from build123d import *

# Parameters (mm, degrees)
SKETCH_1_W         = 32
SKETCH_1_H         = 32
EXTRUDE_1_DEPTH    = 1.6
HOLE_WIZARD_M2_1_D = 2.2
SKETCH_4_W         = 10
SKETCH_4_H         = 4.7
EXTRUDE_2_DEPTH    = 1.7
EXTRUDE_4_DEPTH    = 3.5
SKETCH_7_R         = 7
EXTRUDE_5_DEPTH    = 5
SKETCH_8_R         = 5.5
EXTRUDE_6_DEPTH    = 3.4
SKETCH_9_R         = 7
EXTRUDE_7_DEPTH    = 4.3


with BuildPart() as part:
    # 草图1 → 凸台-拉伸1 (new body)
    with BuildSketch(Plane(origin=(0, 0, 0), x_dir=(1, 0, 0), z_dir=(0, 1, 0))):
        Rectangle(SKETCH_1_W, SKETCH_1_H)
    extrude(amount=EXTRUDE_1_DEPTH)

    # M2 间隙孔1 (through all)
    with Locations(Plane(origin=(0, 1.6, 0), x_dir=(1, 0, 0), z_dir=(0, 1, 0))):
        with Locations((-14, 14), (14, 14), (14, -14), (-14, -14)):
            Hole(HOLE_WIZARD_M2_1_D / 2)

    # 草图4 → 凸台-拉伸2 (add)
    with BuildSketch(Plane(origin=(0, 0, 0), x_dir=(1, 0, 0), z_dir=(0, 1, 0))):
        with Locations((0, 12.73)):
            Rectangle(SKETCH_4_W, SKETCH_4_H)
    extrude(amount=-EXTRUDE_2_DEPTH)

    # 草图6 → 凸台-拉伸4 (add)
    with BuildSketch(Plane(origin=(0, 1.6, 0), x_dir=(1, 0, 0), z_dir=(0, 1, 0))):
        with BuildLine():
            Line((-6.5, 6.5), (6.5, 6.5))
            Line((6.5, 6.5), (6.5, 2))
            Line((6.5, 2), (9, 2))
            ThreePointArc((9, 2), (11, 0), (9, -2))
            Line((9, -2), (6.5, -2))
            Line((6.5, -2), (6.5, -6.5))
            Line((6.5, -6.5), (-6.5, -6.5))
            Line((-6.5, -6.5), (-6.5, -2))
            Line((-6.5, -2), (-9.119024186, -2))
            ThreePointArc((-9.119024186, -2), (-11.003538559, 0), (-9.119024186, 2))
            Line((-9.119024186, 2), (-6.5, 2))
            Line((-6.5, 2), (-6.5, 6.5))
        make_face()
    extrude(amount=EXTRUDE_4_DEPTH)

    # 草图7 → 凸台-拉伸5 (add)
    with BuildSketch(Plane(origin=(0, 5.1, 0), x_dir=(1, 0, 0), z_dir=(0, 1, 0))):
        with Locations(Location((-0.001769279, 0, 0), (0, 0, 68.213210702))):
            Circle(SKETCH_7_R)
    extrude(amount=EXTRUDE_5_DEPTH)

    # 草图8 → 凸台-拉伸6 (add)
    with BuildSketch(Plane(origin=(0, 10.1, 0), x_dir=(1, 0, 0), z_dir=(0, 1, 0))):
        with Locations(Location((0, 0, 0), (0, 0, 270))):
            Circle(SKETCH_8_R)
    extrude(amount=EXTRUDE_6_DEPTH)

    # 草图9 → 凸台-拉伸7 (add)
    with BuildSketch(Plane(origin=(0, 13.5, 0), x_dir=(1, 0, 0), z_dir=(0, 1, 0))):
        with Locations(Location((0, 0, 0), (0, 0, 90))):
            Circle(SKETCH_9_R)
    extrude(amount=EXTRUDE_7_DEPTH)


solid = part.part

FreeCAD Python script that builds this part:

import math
import FreeCAD as App
import Part
import Sketcher

V = App.Vector

doc = App.newDocument("Part")
body = doc.addObject("PartDesign::Body", "Body")

# Sketch on XZ plane
sketch1 = body.newObject("Sketcher::SketchObject", "Sketch")
sketch1.AttachmentSupport = (doc.getObject("XZ_Plane"), [""])
sketch1.MapMode = "FlatFace"
sketch1.addGeometry(Part.LineSegment(V(-16, -16, 0), V(-16, 16, 0)), False)
sketch1.addGeometry(Part.LineSegment(V(-16, 16, 0), V(16, 16, 0)), False)
sketch1.addGeometry(Part.LineSegment(V(16, 16, 0), V(16, -16, 0)), False)
sketch1.addGeometry(Part.LineSegment(V(16, -16, 0), V(-16, -16, 0)), False)
sketch1.addConstraint(Sketcher.Constraint("Coincident", 0, 2, 1, 1))
sketch1.addConstraint(Sketcher.Constraint("Coincident", 1, 2, 2, 1))
sketch1.addConstraint(Sketcher.Constraint("Coincident", 2, 2, 3, 1))
sketch1.addConstraint(Sketcher.Constraint("Coincident", 3, 2, 0, 1))
sketch1.addConstraint(Sketcher.Constraint("Vertical", 0))
sketch1.addConstraint(Sketcher.Constraint("Horizontal", 1))
sketch1.addConstraint(Sketcher.Constraint("Vertical", 2))
sketch1.addConstraint(Sketcher.Constraint("Horizontal", 3))
sketch1.addConstraint(Sketcher.Constraint("Symmetric", 0, 2, 2, 2, -1, 1))
sketch1.addConstraint(Sketcher.Constraint("Equal", 3, 0))
sketch1.addConstraint(Sketcher.Constraint("DistanceX", 1, 1, 1, 2, 32.0))
pad1 = body.newObject("PartDesign::Pad", "Pad")
pad1.Profile = sketch1
pad1.Length = 1.6
pad1.Reversed = True

# Sketch on XZ plane
sketch2 = body.newObject("Sketcher::SketchObject", "Sketch001")
sketch2.AttachmentSupport = (doc.getObject("XZ_Plane"), [""])
sketch2.MapMode = "FlatFace"
sketch2.AttachmentOffset = App.Placement(V(0, 0, -1.6), App.Rotation())
sketch2.addGeometry(Part.Circle(V(-14, -14, 0), V(0, 0, 1), 1.1), False)
sketch2.addGeometry(Part.Circle(V(14, -14, 0), V(0, 0, 1), 1.1), False)
sketch2.addGeometry(Part.Circle(V(14, 14, 0), V(0, 0, 1), 1.1), False)
sketch2.addGeometry(Part.Circle(V(-14, 14, 0), V(0, 0, 1), 1.1), False)
sketch2.addConstraint(Sketcher.Constraint("Equal", 0, 1))
sketch2.addConstraint(Sketcher.Constraint("Equal", 1, 2))
sketch2.addConstraint(Sketcher.Constraint("Equal", 2, 3))
sketch2.addConstraint(Sketcher.Constraint("Symmetric", 0, 3, 2, 3, -1, 1))
sketch2.addConstraint(Sketcher.Constraint("Symmetric", 1, 3, 3, 3, -1, 1))
sketch2.addConstraint(Sketcher.Constraint("Symmetric", 0, 3, 1, 3, -2))
sketch2.addConstraint(Sketcher.Constraint("Diameter", 0, 2.2))
sketch2.addConstraint(Sketcher.Constraint("DistanceX", 0, 3, -1, 1, 14.0))
sketch2.addConstraint(Sketcher.Constraint("DistanceY", 0, 3, -1, 1, 14.0))
doc.recompute()
hole = body.newObject("PartDesign::Hole", "Hole")
hole.Profile = sketch2
hole.ThreadType = "None"
hole.Diameter = 2.2
hole.DepthType = "ThroughAll"
hole.Reversed = True

# Sketch on XZ plane
sketch3 = body.newObject("Sketcher::SketchObject", "Sketch002")
sketch3.AttachmentSupport = (doc.getObject("XZ_Plane"), [""])
sketch3.MapMode = "FlatFace"
sketch3.addGeometry(Part.LineSegment(V(-5, -15.1, 0), V(-5, -10.4, 0)), False)
sketch3.addGeometry(Part.LineSegment(V(-5, -10.4, 0), V(5, -10.4, 0)), False)
sketch3.addGeometry(Part.LineSegment(V(5, -10.4, 0), V(5, -15.1, 0)), False)
sketch3.addGeometry(Part.LineSegment(V(5, -15.1, 0), V(-5, -15.1, 0)), False)
sketch3.addConstraint(Sketcher.Constraint("Coincident", 0, 2, 1, 1))
sketch3.addConstraint(Sketcher.Constraint("Coincident", 1, 2, 2, 1))
sketch3.addConstraint(Sketcher.Constraint("Coincident", 2, 2, 3, 1))
sketch3.addConstraint(Sketcher.Constraint("Coincident", 3, 2, 0, 1))
sketch3.addConstraint(Sketcher.Constraint("Vertical", 0))
sketch3.addConstraint(Sketcher.Constraint("Horizontal", 1))
sketch3.addConstraint(Sketcher.Constraint("Vertical", 2))
sketch3.addConstraint(Sketcher.Constraint("Horizontal", 3))
sketch3.addConstraint(Sketcher.Constraint("DistanceX", 1, 1, 1, 2, 10.0))
sketch3.addConstraint(Sketcher.Constraint("DistanceY", 0, 1, 0, 2, 4.7))
sketch3.addConstraint(Sketcher.Constraint("DistanceX", 0, 2, -1, 1, 5.0))
sketch3.addConstraint(Sketcher.Constraint("DistanceY", 0, 2, -1, 1, 10.38))
pad2 = body.newObject("PartDesign::Pad", "Pad001")
pad2.Profile = sketch3
pad2.Length = 1.7

# Sketch on XZ plane
sketch4 = body.newObject("Sketcher::SketchObject", "Sketch003")
sketch4.AttachmentSupport = (doc.getObject("XZ_Plane"), [""])
sketch4.MapMode = "FlatFace"
sketch4.AttachmentOffset = App.Placement(V(0, 0, -1.6), App.Rotation())
sketch4.addGeometry(Part.LineSegment(V(6.5, -6.5, 0), V(-6.5, -6.5, 0)), False)
sketch4.addGeometry(Part.LineSegment(V(-6.5, -6.5, 0), V(-6.5, -2, 0)), False)
sketch4.addGeometry(Part.LineSegment(V(-6.5, -2, 0), V(-9.1, -2, 0)), False)
sketch4.addGeometry(Part.ArcOfCircle(Part.Circle(V(-9, 0, 0), V(0, 0, 1), 2), math.radians(93), math.radians(267)), False)
sketch4.addGeometry(Part.LineSegment(V(-9.1, 2, 0), V(-6.5, 2, 0)), False)
sketch4.addGeometry(Part.LineSegment(V(-6.5, 2, 0), V(-6.5, 6.5, 0)), False)
sketch4.addGeometry(Part.LineSegment(V(-6.5, 6.5, 0), V(6.5, 6.5, 0)), False)
sketch4.addGeometry(Part.LineSegment(V(6.5, 6.5, 0), V(6.5, 2, 0)), False)
sketch4.addGeometry(Part.LineSegment(V(6.5, 2, 0), V(9, 2, 0)), False)
sketch4.addGeometry(Part.ArcOfCircle(Part.Circle(V(9, 0, 0), V(0, 0, 1), 2), math.radians(-90), math.radians(90)), False)
sketch4.addGeometry(Part.LineSegment(V(9, -2, 0), V(6.5, -2, 0)), False)
sketch4.addGeometry(Part.LineSegment(V(6.5, -2, 0), V(6.5, -6.5, 0)), False)
sketch4.addConstraint(Sketcher.Constraint("Coincident", 0, 2, 1, 1))
sketch4.addConstraint(Sketcher.Constraint("Coincident", 1, 2, 2, 1))
sketch4.addConstraint(Sketcher.Constraint("Coincident", 2, 2, 3, 2))
sketch4.addConstraint(Sketcher.Constraint("Coincident", 3, 1, 4, 1))
sketch4.addConstraint(Sketcher.Constraint("Coincident", 4, 2, 5, 1))
sketch4.addConstraint(Sketcher.Constraint("Coincident", 5, 2, 6, 1))
sketch4.addConstraint(Sketcher.Constraint("Coincident", 6, 2, 7, 1))
sketch4.addConstraint(Sketcher.Constraint("Coincident", 7, 2, 8, 1))
sketch4.addConstraint(Sketcher.Constraint("Tangent", 8, 2, 9, 2))
sketch4.addConstraint(Sketcher.Constraint("Tangent", 9, 1, 10, 1))
sketch4.addConstraint(Sketcher.Constraint("Coincident", 10, 2, 11, 1))
sketch4.addConstraint(Sketcher.Constraint("Coincident", 11, 2, 0, 1))
sketch4.addConstraint(Sketcher.Constraint("Horizontal", 0))
sketch4.addConstraint(Sketcher.Constraint("Vertical", 1))
sketch4.addConstraint(Sketcher.Constraint("Horizontal", 2))
sketch4.addConstraint(Sketcher.Constraint("Horizontal", 4))
sketch4.addConstraint(Sketcher.Constraint("Vertical", 5))
sketch4.addConstraint(Sketcher.Constraint("Horizontal", 6))
sketch4.addConstraint(Sketcher.Constraint("Vertical", 7))
sketch4.addConstraint(Sketcher.Constraint("Horizontal", 8))
sketch4.addConstraint(Sketcher.Constraint("Horizontal", 10))
sketch4.addConstraint(Sketcher.Constraint("Vertical", 11))
sketch4.addConstraint(Sketcher.Constraint("Symmetric", 3, 3, 9, 3, -1, 1))
sketch4.addConstraint(Sketcher.Constraint("Symmetric", 0, 2, 6, 2, -1, 1))
sketch4.addConstraint(Sketcher.Constraint("Symmetric", 4, 2, 10, 2, -1, 1))
sketch4.addConstraint(Sketcher.Constraint("Symmetric", 4, 2, 7, 2, -2))
sketch4.addConstraint(Sketcher.Constraint("Horizontal", 2, 2, 9, 1))
sketch4.addConstraint(Sketcher.Constraint("Radius", 9, 2.0))
sketch4.addConstraint(Sketcher.Constraint("DistanceX", 0, 2, 0, 1, 13.0))
sketch4.addConstraint(Sketcher.Constraint("DistanceX", 8, 1, 8, 2, 2.5))
sketch4.addConstraint(Sketcher.Constraint("DistanceY", 1, 1, 1, 2, 4.5))
sketch4.addConstraint(Sketcher.Constraint("Radius", 3, 2.003539))
pad3 = body.newObject("PartDesign::Pad", "Pad002")
pad3.Profile = sketch4
pad3.Length = 3.5
pad3.Reversed = True

# Sketch on XZ plane
sketch5 = body.newObject("Sketcher::SketchObject", "Sketch004")
sketch5.AttachmentSupport = (doc.getObject("XZ_Plane"), [""])
sketch5.MapMode = "FlatFace"
sketch5.AttachmentOffset = App.Placement(V(0, 0, -5.1), App.Rotation())
sketch5.addGeometry(Part.Circle(V(0, 0, 0), V(0, 0, 1), 7), False)
sketch5.addConstraint(Sketcher.Constraint("PointOnObject", 0, 3, -1))
sketch5.addConstraint(Sketcher.Constraint("Diameter", 0, 14.0))
sketch5.addConstraint(Sketcher.Constraint("DistanceX", 0, 3, -1, 1, 0.001769))
pad4 = body.newObject("PartDesign::Pad", "Pad003")
pad4.Profile = sketch5
pad4.Length = 5
pad4.Reversed = True

# Sketch on XZ plane
sketch6 = body.newObject("Sketcher::SketchObject", "Sketch005")
sketch6.AttachmentSupport = (doc.getObject("XZ_Plane"), [""])
sketch6.MapMode = "FlatFace"
sketch6.AttachmentOffset = App.Placement(V(0, 0, -10.1), App.Rotation())
sketch6.addGeometry(Part.Circle(V(0, 0, 0), V(0, 0, 1), 6), False)
sketch6.addConstraint(Sketcher.Constraint("Coincident", 0, 3, -1, 1))
sketch6.addConstraint(Sketcher.Constraint("Diameter", 0, 11.0))
pad5 = body.newObject("PartDesign::Pad", "Pad004")
pad5.Profile = sketch6
pad5.Length = 3.4
pad5.Reversed = True

# Sketch on XZ plane
sketch7 = body.newObject("Sketcher::SketchObject", "Sketch006")
sketch7.AttachmentSupport = (doc.getObject("XZ_Plane"), [""])
sketch7.MapMode = "FlatFace"
sketch7.AttachmentOffset = App.Placement(V(0, 0, -13.5), App.Rotation())
sketch7.addGeometry(Part.Circle(V(0, 0, 0), V(0, 0, 1), 7), False)
sketch7.addConstraint(Sketcher.Constraint("Coincident", 0, 3, -1, 1))
sketch7.addConstraint(Sketcher.Constraint("Diameter", 0, 14.0))
pad6 = body.newObject("PartDesign::Pad", "Pad005")
pad6.Profile = sketch7
pad6.Length = 4.3
pad6.Reversed = True

doc.recompute()
